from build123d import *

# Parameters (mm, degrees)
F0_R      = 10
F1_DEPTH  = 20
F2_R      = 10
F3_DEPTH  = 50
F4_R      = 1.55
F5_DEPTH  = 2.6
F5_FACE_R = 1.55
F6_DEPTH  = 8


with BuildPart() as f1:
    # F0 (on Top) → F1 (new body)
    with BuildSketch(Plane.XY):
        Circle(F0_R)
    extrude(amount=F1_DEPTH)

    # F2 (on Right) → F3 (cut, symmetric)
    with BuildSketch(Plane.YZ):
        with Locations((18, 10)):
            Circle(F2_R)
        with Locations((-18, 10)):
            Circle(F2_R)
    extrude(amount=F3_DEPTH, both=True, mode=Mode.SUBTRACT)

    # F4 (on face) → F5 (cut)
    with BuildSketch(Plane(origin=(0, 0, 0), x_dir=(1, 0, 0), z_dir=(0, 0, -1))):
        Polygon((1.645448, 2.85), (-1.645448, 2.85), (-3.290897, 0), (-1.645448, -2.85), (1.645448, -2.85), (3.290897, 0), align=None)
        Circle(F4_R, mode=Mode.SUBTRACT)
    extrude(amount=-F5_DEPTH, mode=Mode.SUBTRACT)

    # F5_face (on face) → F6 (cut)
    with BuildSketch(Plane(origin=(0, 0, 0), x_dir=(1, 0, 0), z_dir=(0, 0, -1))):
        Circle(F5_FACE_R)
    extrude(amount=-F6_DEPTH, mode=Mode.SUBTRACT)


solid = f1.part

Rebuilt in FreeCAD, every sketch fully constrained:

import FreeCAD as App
import Part
import Sketcher

V = App.Vector
Q = App.Units.Quantity

doc = App.newDocument("Part")
body = doc.addObject("PartDesign::Body", "Body")

sketch1 = body.newObject("Sketcher::SketchObject", "Sketch")
sketch1.AttachmentSupport = (doc.getObject("XY_Plane"), [""])
sketch1.MapMode = "FlatFace"
sketch1.addGeometry(Part.Circle(V(0, 0, 0), V(0, 0, 1), 10), False)
sketch1.addConstraint([
    Sketcher.Constraint("Coincident", 0, 3, -1, 1),
    Sketcher.Constraint("Diameter", 0, Q("20 mm")),
])
pad1 = body.newObject("PartDesign::Pad", "Pad")
pad1.Profile = sketch1
pad1.Length = 20

sketch2 = body.newObject("Sketcher::SketchObject", "Sketch001")
sketch2.AttachmentSupport = (doc.getObject("YZ_Plane"), [""])
sketch2.MapMode = "FlatFace"
sketch2.addGeometry([
    Part.Circle(V(18, 10, 0), V(0, 0, 1), 10),
    Part.Circle(V(-18, 10, 0), V(0, 0, 1), 10),
], False)
sketch2.addConstraint([
    Sketcher.Constraint("Equal", 0, 1),
    Sketcher.Constraint("Symmetric", 0, 3, 1, 3, -2),
    Sketcher.Constraint("Diameter", 0, Q("20 mm")),
    Sketcher.Constraint("DistanceX", -1, 1, 0, 3, Q("18 mm")),
    Sketcher.Constraint("DistanceY", -1, 1, 0, 3, Q("10 mm")),
])
pocket1 = body.newObject("PartDesign::Pocket", "Pocket")
pocket1.Profile = sketch2
pocket1.Length = 100
pocket1.Midplane = True

sketch3 = body.newObject("Sketcher::SketchObject", "Sketch002")
sketch3.AttachmentSupport = (doc.getObject("XY_Plane"), [""])
sketch3.MapMode = "FlatFace"
sketch3.addGeometry([
    Part.LineSegment(V(1.6, -2.9, 0), V(-1.6, -2.9, 0)),
    Part.LineSegment(V(-1.6, -2.9, 0), V(-3.3, 0, 0)),
    Part.LineSegment(V(-3.3, 0, 0), V(-1.6, 2.9, 0)),
    Part.LineSegment(V(-1.6, 2.9, 0), V(1.6, 2.9, 0)),
    Part.LineSegment(V(1.6, 2.9, 0), V(3.3, 0, 0)),
    Part.LineSegment(V(3.3, 0, 0), V(1.6, -2.9, 0)),
    Part.Circle(V(0, 0, 0), V(0, 0, 1), 1.6),
], False)
sketch3.addConstraint([
    Sketcher.Constraint("Coincident", 0, 2, 1, 1),
    Sketcher.Constraint("Coincident", 1, 2, 2, 1),
    Sketcher.Constraint("Coincident", 2, 2, 3, 1),
    Sketcher.Constraint("Coincident", 3, 2, 4, 1),
    Sketcher.Constraint("Coincident", 4, 2, 5, 1),
    Sketcher.Constraint("Coincident", 5, 2, 0, 1),
    Sketcher.Constraint("Horizontal", 0),
    Sketcher.Constraint("Horizontal", 3),
    Sketcher.Constraint("Coincident", 6, 3, -1, 1),
    Sketcher.Constraint("Symmetric", 0, 2, 3, 2, -1, 1),
    Sketcher.Constraint("Symmetric", 1, 2, 4, 2, -1, 1),
    Sketcher.Constraint("PointOnObject", 1, 2, -1),
    Sketcher.Constraint("Parallel", 2, 5),
    Sketcher.Constraint("Vertical", 0, 2, 2, 2),
    Sketcher.Constraint("Diameter", 6, Q("3.1 mm")),
    Sketcher.Constraint("Angle", 1, Q("120.000011 deg")),
    Sketcher.Constraint("DistanceY", 0, 2, 2, 2, Q("5.7 mm")),
    Sketcher.Constraint("DistanceX", 0, 2, 0, 1, Q("3.290896 mm")),
])
pocket2 = body.newObject("PartDesign::Pocket", "Pocket001")
pocket2.Profile = sketch3
pocket2.Length = 2.6
pocket2.Reversed = True

sketch4 = body.newObject("Sketcher::SketchObject", "Sketch003")
sketch4.AttachmentSupport = (doc.getObject("XY_Plane"), [""])
sketch4.MapMode = "FlatFace"
sketch4.addGeometry(Part.Circle(V(0, 0, 0), V(0, 0, 1), 1.6), False)
sketch4.addConstraint([
    Sketcher.Constraint("Coincident", 0, 3, -1, 1),
    Sketcher.Constraint("Diameter", 0, Q("3.1 mm")),
])
pocket3 = body.newObject("PartDesign::Pocket", "Pocket002")
pocket3.Profile = sketch4
pocket3.Length = 8
pocket3.Reversed = True

doc.recompute()
